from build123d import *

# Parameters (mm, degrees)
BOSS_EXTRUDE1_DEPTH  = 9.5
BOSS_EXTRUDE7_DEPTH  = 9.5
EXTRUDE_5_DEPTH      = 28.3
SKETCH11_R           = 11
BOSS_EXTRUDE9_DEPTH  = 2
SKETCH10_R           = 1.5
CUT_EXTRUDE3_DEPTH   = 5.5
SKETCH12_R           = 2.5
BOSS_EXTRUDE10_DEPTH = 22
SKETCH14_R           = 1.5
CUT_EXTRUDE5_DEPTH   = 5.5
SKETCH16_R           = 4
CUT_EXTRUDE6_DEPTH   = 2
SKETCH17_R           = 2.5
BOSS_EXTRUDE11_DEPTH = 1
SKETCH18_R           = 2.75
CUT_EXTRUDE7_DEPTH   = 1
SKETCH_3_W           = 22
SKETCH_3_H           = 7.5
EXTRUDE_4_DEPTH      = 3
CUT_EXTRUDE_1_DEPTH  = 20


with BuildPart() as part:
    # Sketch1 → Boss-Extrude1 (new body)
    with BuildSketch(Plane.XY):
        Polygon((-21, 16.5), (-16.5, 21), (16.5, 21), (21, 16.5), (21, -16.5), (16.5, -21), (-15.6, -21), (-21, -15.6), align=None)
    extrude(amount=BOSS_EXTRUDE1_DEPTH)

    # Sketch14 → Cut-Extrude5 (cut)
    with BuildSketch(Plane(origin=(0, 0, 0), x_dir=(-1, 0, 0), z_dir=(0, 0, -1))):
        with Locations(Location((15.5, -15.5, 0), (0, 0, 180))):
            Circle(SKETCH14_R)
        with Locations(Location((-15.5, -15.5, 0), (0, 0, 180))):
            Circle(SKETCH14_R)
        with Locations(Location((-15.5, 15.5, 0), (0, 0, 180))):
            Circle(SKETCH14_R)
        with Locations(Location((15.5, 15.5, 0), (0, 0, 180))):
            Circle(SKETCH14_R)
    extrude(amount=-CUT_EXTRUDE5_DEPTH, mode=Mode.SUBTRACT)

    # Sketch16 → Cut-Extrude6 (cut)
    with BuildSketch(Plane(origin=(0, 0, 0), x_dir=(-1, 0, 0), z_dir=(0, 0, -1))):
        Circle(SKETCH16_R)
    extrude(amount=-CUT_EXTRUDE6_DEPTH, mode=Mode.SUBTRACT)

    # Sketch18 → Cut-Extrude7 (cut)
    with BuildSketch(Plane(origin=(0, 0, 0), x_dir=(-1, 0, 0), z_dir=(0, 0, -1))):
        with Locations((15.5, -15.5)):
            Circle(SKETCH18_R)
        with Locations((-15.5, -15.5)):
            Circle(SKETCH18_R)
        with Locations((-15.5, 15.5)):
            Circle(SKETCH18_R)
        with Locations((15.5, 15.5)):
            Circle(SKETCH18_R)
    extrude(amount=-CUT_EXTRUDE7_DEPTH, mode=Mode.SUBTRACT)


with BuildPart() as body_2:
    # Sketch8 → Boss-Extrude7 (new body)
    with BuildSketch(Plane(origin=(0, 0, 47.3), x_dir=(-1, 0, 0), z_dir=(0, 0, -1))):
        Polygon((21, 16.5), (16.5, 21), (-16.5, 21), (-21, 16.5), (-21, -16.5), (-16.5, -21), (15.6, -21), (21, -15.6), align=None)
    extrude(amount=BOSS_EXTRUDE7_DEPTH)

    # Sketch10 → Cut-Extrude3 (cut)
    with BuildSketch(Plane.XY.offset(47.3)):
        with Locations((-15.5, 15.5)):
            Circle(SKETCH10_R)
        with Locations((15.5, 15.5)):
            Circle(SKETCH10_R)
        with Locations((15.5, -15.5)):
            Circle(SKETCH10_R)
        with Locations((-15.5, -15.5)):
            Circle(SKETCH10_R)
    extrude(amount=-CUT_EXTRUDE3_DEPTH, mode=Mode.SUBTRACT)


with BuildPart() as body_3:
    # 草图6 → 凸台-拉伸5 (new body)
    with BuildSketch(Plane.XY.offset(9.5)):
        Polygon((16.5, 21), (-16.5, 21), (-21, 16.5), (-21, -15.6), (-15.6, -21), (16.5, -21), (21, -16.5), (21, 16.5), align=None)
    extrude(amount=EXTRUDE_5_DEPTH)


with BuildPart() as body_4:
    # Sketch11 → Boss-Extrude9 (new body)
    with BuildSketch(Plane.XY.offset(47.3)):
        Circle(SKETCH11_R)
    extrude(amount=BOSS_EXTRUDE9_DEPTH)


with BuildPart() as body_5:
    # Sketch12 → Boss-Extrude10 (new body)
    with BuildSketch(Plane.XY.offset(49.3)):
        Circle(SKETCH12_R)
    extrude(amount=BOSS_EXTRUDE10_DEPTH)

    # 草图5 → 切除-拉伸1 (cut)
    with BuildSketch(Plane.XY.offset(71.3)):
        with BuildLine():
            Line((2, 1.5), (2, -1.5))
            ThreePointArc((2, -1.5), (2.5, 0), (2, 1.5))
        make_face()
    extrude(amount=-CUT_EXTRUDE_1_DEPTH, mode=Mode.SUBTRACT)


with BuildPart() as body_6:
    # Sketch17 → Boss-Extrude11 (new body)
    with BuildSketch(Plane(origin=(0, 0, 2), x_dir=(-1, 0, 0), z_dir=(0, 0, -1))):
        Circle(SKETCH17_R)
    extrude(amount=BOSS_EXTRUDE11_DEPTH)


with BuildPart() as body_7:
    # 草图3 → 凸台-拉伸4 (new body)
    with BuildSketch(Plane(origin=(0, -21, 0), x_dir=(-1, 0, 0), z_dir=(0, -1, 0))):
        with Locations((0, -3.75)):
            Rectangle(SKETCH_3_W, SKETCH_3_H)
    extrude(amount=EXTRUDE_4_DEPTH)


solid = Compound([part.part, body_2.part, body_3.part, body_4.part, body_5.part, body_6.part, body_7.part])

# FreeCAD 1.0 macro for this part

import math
import FreeCAD as App
import Part
import Sketcher
Q = App.Units.Quantity


def add_polygon(sketch, points):
    """Adds a closed chain of lines whose ends are joined by coincident constraints."""
    first, n = sketch.GeometryCount, len(points)
    for a, b in zip(points, points[1:] + points[:1]):
        sketch.addGeometry(Part.LineSegment(App.Vector(*a, 0), App.Vector(*b, 0)), False)
    for i in range(n):
        sketch.addConstraint(Sketcher.Constraint("Coincident", first + i, 2, first + (i + 1) % n, 1))

doc = App.newDocument("Part")
params = doc.addObject("Spreadsheet::Sheet", "Params")
for row, (alias, value) in enumerate([
    ("sketch1_width", "33 mm"),
    ("sketch1_width2", "32.1 mm"),
    ("pad1_length", "9.5 mm"),
    ("sketch2_diameter", "3 mm"),
    ("pocket1_length", "5.5 mm"),
    ("sketch3_diameter", "8 mm"),
    ("pocket2_length", "2 mm"),
    ("sketch4_diameter", "5.5 mm"),
    ("pocket3_length", "1 mm"),
    ("sketch5_width", "33 mm"),
    ("sketch5_width2", "32.1 mm"),
    ("pad2_length", "9.5 mm"),
    ("sketch6_diameter", "3 mm"),
    ("pocket4_length", "5.5 mm"),
    ("sketch7_width", "33 mm"),
    ("sketch7_width2", "32.1 mm"),
    ("pad3_length", "28.3 mm"),
    ("sketch8_diameter", "22 mm"),
    ("pad4_length", "2 mm"),
    ("sketch9_diameter", "5 mm"),
    ("pad5_length", "22 mm"),
    ("sketch10_radius", "2.5 mm"),
    ("sketch10_height", "3 mm"),
    ("pocket5_length", "20 mm"),
    ("sketch11_diameter", "5 mm"),
    ("pad6_length", "1 mm"),
    ("sketch12_width", "22 mm"),
    ("sketch12_height", "7.5 mm"),
    ("pad7_length", "3 mm"),
], start=1):
    params.set(f"A{row}", alias)
    params.set(f"B{row}", "=" + value)
    params.setAlias(f"B{row}", alias)

body = doc.addObject("PartDesign::Body", "Body")

sketch1 = body.newObject("Sketcher::SketchObject", "Sketch")
sketch1.AttachmentSupport = (doc.getObject("XY_Plane"), [""])
sketch1.MapMode = "FlatFace"
add_polygon(sketch1, [(-16, 21), (-21, 16), (-21, -16), (-16, -21), (16, -21), (21, -16), (21, 16), (16, 21)])
sketch1.addConstraint([
    Sketcher.Constraint("Vertical", 1),
    Sketcher.Constraint("Horizontal", 3),
    Sketcher.Constraint("Vertical", 5),
    Sketcher.Constraint("Horizontal", 7),
    Sketcher.Constraint("Symmetric", 0, 2, 4, 2, -1, 1),
    Sketcher.Constraint("Symmetric", 3, 2, 7, 2, -1, 1),
    Sketcher.Constraint("Perpendicular", 0, 2),
    Sketcher.Constraint("Perpendicular", 4, 6),
    Sketcher.Constraint("Horizontal", 0, 2, 5, 2),
    Sketcher.Constraint("Vertical", 3, 2, 6, 2),
    Sketcher.Constraint("Equal", 3, 1),
    Sketcher.Constraint("DistanceX", 7, 2, 7, 1, Q("33 mm")),
    Sketcher.Constraint("DistanceX", 3, 1, 3, 2, Q("32.1 mm")),
    Sketcher.Constraint("DistanceX", 0, 2, -1, 1, Q("21 mm")),
])
sketch1.setExpression("Constraints[19]", "Params.sketch1_width")
sketch1.setExpression("Constraints[20]", "Params.sketch1_width2")
pad1 = body.newObject("PartDesign::Pad", "Pad")
pad1.Profile = sketch1
pad1.setExpression("Length", "Params.pad1_length")

sketch2 = body.newObject("Sketcher::SketchObject", "Sketch001")
sketch2.AttachmentSupport = (doc.getObject("XY_Plane"), [""])
sketch2.MapMode = "FlatFace"
sketch2.addGeometry([
    Part.Circle(App.Vector(-15.5, -15.5, 0), App.Vector(0, 0, 1), 1.5),
    Part.Circle(App.Vector(15.5, -15.5, 0), App.Vector(0, 0, 1), 1.5),
    Part.Circle(App.Vector(15.5, 15.5, 0), App.Vector(0, 0, 1), 1.5),
    Part.Circle(App.Vector(-15.5, 15.5, 0), App.Vector(0, 0, 1), 1.5),
], False)
sketch2.addConstraint([
    Sketcher.Constraint("Equal", 0, 1),
    Sketcher.Constraint("Equal", 1, 2),
    Sketcher.Constraint("Equal", 2, 3),
    Sketcher.Constraint("Symmetric", 0, 3, 2, 3, -1, 1),
    Sketcher.Constraint("Symmetric", 1, 3, 3, 3, -1, 1),
    Sketcher.Constraint("Symmetric", 0, 3, 1, 3, -2),
    Sketcher.Constraint("Diameter", 0, Q("3 mm")),
    Sketcher.Constraint("DistanceX", 0, 3, 1, 3, Q("31 mm")),
    Sketcher.Constraint("DistanceY", 1, 3, 2, 3, Q("31 mm")),
])
sketch2.setExpression("Constraints[6]", "Params.sketch2_diameter")
pocket1 = body.newObject("PartDesign::Pocket", "Pocket")
pocket1.Profile = sketch2
pocket1.setExpression("Length", "Params.pocket1_length")
pocket1.Reversed = True

sketch3 = body.newObject("Sketcher::SketchObject", "Sketch002")
sketch3.AttachmentSupport = (doc.getObject("XY_Plane"), [""])
sketch3.MapMode = "FlatFace"
sketch3.addGeometry(Part.Circle(App.Vector(0, 0, 0), App.Vector(0, 0, 1), 4), False)
sketch3.addConstraint([
    Sketcher.Constraint("Coincident", 0, 3, -1, 1),
    Sketcher.Constraint("Diameter", 0, Q("8 mm")),
])
sketch3.setExpression("Constraints[1]", "Params.sketch3_diameter")
pocket2 = body.newObject("PartDesign::Pocket", "Pocket001")
pocket2.Profile = sketch3
pocket2.setExpression("Length", "Params.pocket2_length")
pocket2.Reversed = True

sketch4 = body.newObject("Sketcher::SketchObject", "Sketch003")
sketch4.AttachmentSupport = (doc.getObject("XY_Plane"), [""])
sketch4.MapMode = "FlatFace"
sketch4.addGeometry([
    Part.Circle(App.Vector(-15.5, -15.5, 0), App.Vector(0, 0, 1), 2.8),
    Part.Circle(App.Vector(15.5, -15.5, 0), App.Vector(0, 0, 1), 2.8),
    Part.Circle(App.Vector(15.5, 15.5, 0), App.Vector(0, 0, 1), 2.8),
    Part.Circle(App.Vector(-15.5, 15.5, 0), App.Vector(0, 0, 1), 2.8),
], False)
sketch4.addConstraint([
    Sketcher.Constraint("Equal", 0, 1),
    Sketcher.Constraint("Equal", 1, 2),
    Sketcher.Constraint("Equal", 2, 3),
    Sketcher.Constraint("Symmetric", 0, 3, 2, 3, -1, 1),
    Sketcher.Constraint("Symmetric", 1, 3, 3, 3, -1, 1),
    Sketcher.Constraint("Symmetric", 0, 3, 1, 3, -2),
    Sketcher.Constraint("Diameter", 0, Q("5.5 mm")),
    Sketcher.Constraint("DistanceX", 0, 3, 1, 3, Q("31 mm")),
    Sketcher.Constraint("DistanceY", 1, 3, 2, 3, Q("31 mm")),
])
sketch4.setExpression("Constraints[6]", "Params.sketch4_diameter")
pocket3 = body.newObject("PartDesign::Pocket", "Pocket002")
pocket3.Profile = sketch4
pocket3.setExpression("Length", "Params.pocket3_length")
pocket3.Reversed = True
body2 = doc.addObject("PartDesign::Body", "Body001")

sketch5 = body2.newObject("Sketcher::SketchObject", "Sketch004")
sketch5.AttachmentSupport = (doc.getObject("XY_Plane001"), [""])
sketch5.MapMode = "FlatFace"
sketch5.AttachmentOffset = App.Placement(App.Vector(0, 0, 47.3), App.Rotation())
add_polygon(sketch5, [(-21, 16), (-16, 21), (16, 21), (21, 16), (21, -16), (16, -21), (-16, -21), (-21, -16)])
sketch5.addConstraint([
    Sketcher.Constraint("Horizontal", 1),
    Sketcher.Constraint("Vertical", 3),
    Sketcher.Constraint("Horizontal", 5),
    Sketcher.Constraint("Vertical", 7),
    Sketcher.Constraint("Symmetric", 0, 2, 4, 2, -1, 1),
    Sketcher.Constraint("Symmetric", 3, 2, 7, 2, -1, 1),
    Sketcher.Constraint("Perpendicular", 0, 2),
    Sketcher.Constraint("Perpendicular", 4, 6),
    Sketcher.Constraint("Horizontal", 2, 2, 7, 2),
    Sketcher.Constraint("Vertical", 1, 2, 4, 2),
    Sketcher.Constraint("Equal", 1, 3),
    Sketcher.Constraint("DistanceX", 1, 1, 1, 2, Q("33 mm")),
    Sketcher.Constraint("DistanceX", 5, 2, 5, 1, Q("32.1 mm")),
    Sketcher.Constraint("DistanceY", -1, 1, 0, 2, Q("21 mm")),
])
sketch5.setExpression("Constraints[19]", "Params.sketch5_width")
sketch5.setExpression("Constraints[20]", "Params.sketch5_width2")
pad2 = body2.newObject("PartDesign::Pad", "Pad001")
pad2.Profile = sketch5
pad2.setExpression("Length", "Params.pad2_length")
pad2.Reversed = True

sketch6 = body2.newObject("Sketcher::SketchObject", "Sketch005")
sketch6.AttachmentSupport = (doc.getObject("XY_Plane001"), [""])
sketch6.MapMode = "FlatFace"
sketch6.AttachmentOffset = App.Placement(App.Vector(0, 0, 47.3), App.Rotation())
sketch6.addGeometry([
    Part.Circle(App.Vector(-15.5, 15.5, 0), App.Vector(0, 0, 1), 1.5),
    Part.Circle(App.Vector(15.5, 15.5, 0), App.Vector(0, 0, 1), 1.5),
    Part.Circle(App.Vector(15.5, -15.5, 0), App.Vector(0, 0, 1), 1.5),
    Part.Circle(App.Vector(-15.5, -15.5, 0), App.Vector(0, 0, 1), 1.5),
], False)
sketch6.addConstraint([
    Sketcher.Constraint("Equal", 0, 1),
    Sketcher.Constraint("Equal", 1, 2),
    Sketcher.Constraint("Equal", 2, 3),
    Sketcher.Constraint("Symmetric", 0, 3, 2, 3, -1, 1),
    Sketcher.Constraint("Symmetric", 1, 3, 3, 3, -1, 1),
    Sketcher.Constraint("Symmetric", 0, 3, 1, 3, -2),
    Sketcher.Constraint("Diameter", 0, Q("3 mm")),
    Sketcher.Constraint("DistanceX", 0, 3, 1, 3, Q("31 mm")),
    Sketcher.Constraint("DistanceY", 2, 3, 1, 3, Q("31 mm")),
])
sketch6.setExpression("Constraints[6]", "Params.sketch6_diameter")
pocket4 = body2.newObject("PartDesign::Pocket", "Pocket003")
pocket4.Profile = sketch6
pocket4.setExpression("Length", "Params.pocket4_length")
body3 = doc.addObject("PartDesign::Body", "Body002")

sketch7 = body3.newObject("Sketcher::SketchObject", "Sketch006")
sketch7.AttachmentSupport = (doc.getObject("XY_Plane002"), [""])
sketch7.MapMode = "FlatFace"
sketch7.AttachmentOffset = App.Placement(App.Vector(0, 0, 9.5), App.Rotation())
add_polygon(sketch7, [(16, 21), (-16, 21), (-21, 16), (-21, -16), (-16, -21), (16, -21), (21, -16), (21, 16)])
sketch7.addConstraint([
    Sketcher.Constraint("Horizontal", 0),
    Sketcher.Constraint("Vertical", 2),
    Sketcher.Constraint("Horizontal", 4),
    Sketcher.Constraint("Vertical", 6),
    Sketcher.Constraint("Symmetric", 0, 2, 4, 2, -1, 1),
    Sketcher.Constraint("Symmetric", 1, 2, 5, 2, -1, 1),
    Sketcher.Constraint("Perpendicular", 1, 3),
    Sketcher.Constraint("Perpendicular", 5, 7),
    Sketcher.Constraint("Horizontal", 1, 2, 6, 2),
    Sketcher.Constraint("Vertical", 4, 2, 7, 2),
    Sketcher.Constraint("Equal", 4, 2),
    Sketcher.Constraint("DistanceX", 0, 2, 0, 1, Q("33 mm")),
    Sketcher.Constraint("DistanceX", 4, 1, 4, 2, Q("32.1 mm")),
    Sketcher.Constraint("DistanceY", -1, 1, 0, 2, Q("21 mm")),
])
sketch7.setExpression("Constraints[19]", "Params.sketch7_width")
sketch7.setExpression("Constraints[20]", "Params.sketch7_width2")
pad3 = body3.newObject("PartDesign::Pad", "Pad002")
pad3.Profile = sketch7
pad3.setExpression("Length", "Params.pad3_length")
body4 = doc.addObject("PartDesign::Body", "Body003")

sketch8 = body4.newObject("Sketcher::SketchObject", "Sketch007")
sketch8.AttachmentSupport = (doc.getObject("XY_Plane003"), [""])
sketch8.MapMode = "FlatFace"
sketch8.AttachmentOffset = App.Placement(App.Vector(0, 0, 47.3), App.Rotation())
sketch8.addGeometry(Part.Circle(App.Vector(0, 0, 0), App.Vector(0, 0, 1), 11), False)
sketch8.addConstraint([
    Sketcher.Constraint("Coincident", 0, 3, -1, 1),
    Sketcher.Constraint("Diameter", 0, Q("22 mm")),
])
sketch8.setExpression("Constraints[1]", "Params.sketch8_diameter")
pad4 = body4.newObject("PartDesign::Pad", "Pad003")
pad4.Profile = sketch8
pad4.setExpression("Length", "Params.pad4_length")
body5 = doc.addObject("PartDesign::Body", "Body004")

sketch9 = body5.newObject("Sketcher::SketchObject", "Sketch008")
sketch9.AttachmentSupport = (doc.getObject("XY_Plane004"), [""])
sketch9.MapMode = "FlatFace"
sketch9.AttachmentOffset = App.Placement(App.Vector(0, 0, 49.3), App.Rotation())
sketch9.addGeometry(Part.Circle(App.Vector(0, 0, 0), App.Vector(0, 0, 1), 2.5), False)
sketch9.addConstraint([
    Sketcher.Constraint("Coincident", 0, 3, -1, 1),
    Sketcher.Constraint("Diameter", 0, Q("5 mm")),
])
sketch9.setExpression("Constraints[1]", "Params.sketch9_diameter")
pad5 = body5.newObject("PartDesign::Pad", "Pad004")
pad5.Profile = sketch9
pad5.setExpression("Length", "Params.pad5_length")

sketch10 = body5.newObject("Sketcher::SketchObject", "Sketch009")
sketch10.AttachmentSupport = (doc.getObject("XY_Plane004"), [""])
sketch10.MapMode = "FlatFace"
sketch10.AttachmentOffset = App.Placement(App.Vector(0, 0, 71.3), App.Rotation())
sketch10.addGeometry([
    Part.LineSegment(App.Vector(2, 1.5, 0), App.Vector(2, -1.5, 0)),
    Part.ArcOfCircle(Part.Circle(App.Vector(0, 0, 0), App.Vector(0, 0, 1), 2.5), math.radians(-37), math.radians(37)),
], False)
sketch10.addConstraint([
    Sketcher.Constraint("Coincident", 0, 1, 1, 2),
    Sketcher.Constraint("Coincident", 1, 1, 0, 2),
    Sketcher.Constraint("Vertical", 0),
    Sketcher.Constraint("Coincident", 1, 3, -1, 1),
    Sketcher.Constraint("Radius", 1, Q("2.5 mm")),
    Sketcher.Constraint("DistanceY", 0, 2, 0, 1, Q("3 mm")),
])
sketch10.setExpression("Constraints[4]", "Params.sketch10_radius")
sketch10.setExpression("Constraints[5]", "Params.sketch10_height")
pocket5 = body5.newObject("PartDesign::Pocket", "Pocket004")
pocket5.Profile = sketch10
pocket5.setExpression("Length", "Params.pocket5_length")
body6 = doc.addObject("PartDesign::Body", "Body005")

sketch11 = body6.newObject("Sketcher::SketchObject", "Sketch010")
sketch11.AttachmentSupport = (doc.getObject("XY_Plane005"), [""])
sketch11.MapMode = "FlatFace"
sketch11.AttachmentOffset = App.Placement(App.Vector(0, 0, 2), App.Rotation())
sketch11.addGeometry(Part.Circle(App.Vector(0, 0, 0), App.Vector(0, 0, 1), 2.5), False)
sketch11.addConstraint([
    Sketcher.Constraint("Coincident", 0, 3, -1, 1),
    Sketcher.Constraint("Diameter", 0, Q("5 mm")),
])
sketch11.setExpression("Constraints[1]", "Params.sketch11_diameter")
pad6 = body6.newObject("PartDesign::Pad", "Pad005")
pad6.Profile = sketch11
pad6.setExpression("Length", "Params.pad6_length")
pad6.Reversed = True
body7 = doc.addObject("PartDesign::Body", "Body006")

sketch12 = body7.newObject("Sketcher::SketchObject", "Sketch011")
sketch12.AttachmentSupport = (doc.getObject("XZ_Plane006"), [""])
sketch12.MapMode = "FlatFace"
sketch12.AttachmentOffset = App.Placement(App.Vector(0, 0, 21), App.Rotation())
add_polygon(sketch12, [(11, 0), (11, 8), (-11, 8), (-11, 0)])
sketch12.addConstraint([
    Sketcher.Constraint("Vertical", 0),
    Sketcher.Constraint("Horizontal", 1),
    Sketcher.Constraint("Vertical", 2),
    Sketcher.Constraint("Horizontal", 3),
    Sketcher.Constraint("Symmetric", 2, 2, 3, 2, -1, 1),
    Sketcher.Constraint("DistanceX", 1, 2, 1, 1, Q("22 mm")),
    Sketcher.Constraint("DistanceY", 0, 1, 0, 2, Q("7.5 mm")),
])
sketch12.setExpression("Constraints[9]", "Params.sketch12_width")
sketch12.setExpression("Constraints[10]", "Params.sketch12_height")
pad7 = body7.newObject("PartDesign::Pad", "Pad006")
pad7.Profile = sketch12
pad7.setExpression("Length", "Params.pad7_length")

doc.recompute()
